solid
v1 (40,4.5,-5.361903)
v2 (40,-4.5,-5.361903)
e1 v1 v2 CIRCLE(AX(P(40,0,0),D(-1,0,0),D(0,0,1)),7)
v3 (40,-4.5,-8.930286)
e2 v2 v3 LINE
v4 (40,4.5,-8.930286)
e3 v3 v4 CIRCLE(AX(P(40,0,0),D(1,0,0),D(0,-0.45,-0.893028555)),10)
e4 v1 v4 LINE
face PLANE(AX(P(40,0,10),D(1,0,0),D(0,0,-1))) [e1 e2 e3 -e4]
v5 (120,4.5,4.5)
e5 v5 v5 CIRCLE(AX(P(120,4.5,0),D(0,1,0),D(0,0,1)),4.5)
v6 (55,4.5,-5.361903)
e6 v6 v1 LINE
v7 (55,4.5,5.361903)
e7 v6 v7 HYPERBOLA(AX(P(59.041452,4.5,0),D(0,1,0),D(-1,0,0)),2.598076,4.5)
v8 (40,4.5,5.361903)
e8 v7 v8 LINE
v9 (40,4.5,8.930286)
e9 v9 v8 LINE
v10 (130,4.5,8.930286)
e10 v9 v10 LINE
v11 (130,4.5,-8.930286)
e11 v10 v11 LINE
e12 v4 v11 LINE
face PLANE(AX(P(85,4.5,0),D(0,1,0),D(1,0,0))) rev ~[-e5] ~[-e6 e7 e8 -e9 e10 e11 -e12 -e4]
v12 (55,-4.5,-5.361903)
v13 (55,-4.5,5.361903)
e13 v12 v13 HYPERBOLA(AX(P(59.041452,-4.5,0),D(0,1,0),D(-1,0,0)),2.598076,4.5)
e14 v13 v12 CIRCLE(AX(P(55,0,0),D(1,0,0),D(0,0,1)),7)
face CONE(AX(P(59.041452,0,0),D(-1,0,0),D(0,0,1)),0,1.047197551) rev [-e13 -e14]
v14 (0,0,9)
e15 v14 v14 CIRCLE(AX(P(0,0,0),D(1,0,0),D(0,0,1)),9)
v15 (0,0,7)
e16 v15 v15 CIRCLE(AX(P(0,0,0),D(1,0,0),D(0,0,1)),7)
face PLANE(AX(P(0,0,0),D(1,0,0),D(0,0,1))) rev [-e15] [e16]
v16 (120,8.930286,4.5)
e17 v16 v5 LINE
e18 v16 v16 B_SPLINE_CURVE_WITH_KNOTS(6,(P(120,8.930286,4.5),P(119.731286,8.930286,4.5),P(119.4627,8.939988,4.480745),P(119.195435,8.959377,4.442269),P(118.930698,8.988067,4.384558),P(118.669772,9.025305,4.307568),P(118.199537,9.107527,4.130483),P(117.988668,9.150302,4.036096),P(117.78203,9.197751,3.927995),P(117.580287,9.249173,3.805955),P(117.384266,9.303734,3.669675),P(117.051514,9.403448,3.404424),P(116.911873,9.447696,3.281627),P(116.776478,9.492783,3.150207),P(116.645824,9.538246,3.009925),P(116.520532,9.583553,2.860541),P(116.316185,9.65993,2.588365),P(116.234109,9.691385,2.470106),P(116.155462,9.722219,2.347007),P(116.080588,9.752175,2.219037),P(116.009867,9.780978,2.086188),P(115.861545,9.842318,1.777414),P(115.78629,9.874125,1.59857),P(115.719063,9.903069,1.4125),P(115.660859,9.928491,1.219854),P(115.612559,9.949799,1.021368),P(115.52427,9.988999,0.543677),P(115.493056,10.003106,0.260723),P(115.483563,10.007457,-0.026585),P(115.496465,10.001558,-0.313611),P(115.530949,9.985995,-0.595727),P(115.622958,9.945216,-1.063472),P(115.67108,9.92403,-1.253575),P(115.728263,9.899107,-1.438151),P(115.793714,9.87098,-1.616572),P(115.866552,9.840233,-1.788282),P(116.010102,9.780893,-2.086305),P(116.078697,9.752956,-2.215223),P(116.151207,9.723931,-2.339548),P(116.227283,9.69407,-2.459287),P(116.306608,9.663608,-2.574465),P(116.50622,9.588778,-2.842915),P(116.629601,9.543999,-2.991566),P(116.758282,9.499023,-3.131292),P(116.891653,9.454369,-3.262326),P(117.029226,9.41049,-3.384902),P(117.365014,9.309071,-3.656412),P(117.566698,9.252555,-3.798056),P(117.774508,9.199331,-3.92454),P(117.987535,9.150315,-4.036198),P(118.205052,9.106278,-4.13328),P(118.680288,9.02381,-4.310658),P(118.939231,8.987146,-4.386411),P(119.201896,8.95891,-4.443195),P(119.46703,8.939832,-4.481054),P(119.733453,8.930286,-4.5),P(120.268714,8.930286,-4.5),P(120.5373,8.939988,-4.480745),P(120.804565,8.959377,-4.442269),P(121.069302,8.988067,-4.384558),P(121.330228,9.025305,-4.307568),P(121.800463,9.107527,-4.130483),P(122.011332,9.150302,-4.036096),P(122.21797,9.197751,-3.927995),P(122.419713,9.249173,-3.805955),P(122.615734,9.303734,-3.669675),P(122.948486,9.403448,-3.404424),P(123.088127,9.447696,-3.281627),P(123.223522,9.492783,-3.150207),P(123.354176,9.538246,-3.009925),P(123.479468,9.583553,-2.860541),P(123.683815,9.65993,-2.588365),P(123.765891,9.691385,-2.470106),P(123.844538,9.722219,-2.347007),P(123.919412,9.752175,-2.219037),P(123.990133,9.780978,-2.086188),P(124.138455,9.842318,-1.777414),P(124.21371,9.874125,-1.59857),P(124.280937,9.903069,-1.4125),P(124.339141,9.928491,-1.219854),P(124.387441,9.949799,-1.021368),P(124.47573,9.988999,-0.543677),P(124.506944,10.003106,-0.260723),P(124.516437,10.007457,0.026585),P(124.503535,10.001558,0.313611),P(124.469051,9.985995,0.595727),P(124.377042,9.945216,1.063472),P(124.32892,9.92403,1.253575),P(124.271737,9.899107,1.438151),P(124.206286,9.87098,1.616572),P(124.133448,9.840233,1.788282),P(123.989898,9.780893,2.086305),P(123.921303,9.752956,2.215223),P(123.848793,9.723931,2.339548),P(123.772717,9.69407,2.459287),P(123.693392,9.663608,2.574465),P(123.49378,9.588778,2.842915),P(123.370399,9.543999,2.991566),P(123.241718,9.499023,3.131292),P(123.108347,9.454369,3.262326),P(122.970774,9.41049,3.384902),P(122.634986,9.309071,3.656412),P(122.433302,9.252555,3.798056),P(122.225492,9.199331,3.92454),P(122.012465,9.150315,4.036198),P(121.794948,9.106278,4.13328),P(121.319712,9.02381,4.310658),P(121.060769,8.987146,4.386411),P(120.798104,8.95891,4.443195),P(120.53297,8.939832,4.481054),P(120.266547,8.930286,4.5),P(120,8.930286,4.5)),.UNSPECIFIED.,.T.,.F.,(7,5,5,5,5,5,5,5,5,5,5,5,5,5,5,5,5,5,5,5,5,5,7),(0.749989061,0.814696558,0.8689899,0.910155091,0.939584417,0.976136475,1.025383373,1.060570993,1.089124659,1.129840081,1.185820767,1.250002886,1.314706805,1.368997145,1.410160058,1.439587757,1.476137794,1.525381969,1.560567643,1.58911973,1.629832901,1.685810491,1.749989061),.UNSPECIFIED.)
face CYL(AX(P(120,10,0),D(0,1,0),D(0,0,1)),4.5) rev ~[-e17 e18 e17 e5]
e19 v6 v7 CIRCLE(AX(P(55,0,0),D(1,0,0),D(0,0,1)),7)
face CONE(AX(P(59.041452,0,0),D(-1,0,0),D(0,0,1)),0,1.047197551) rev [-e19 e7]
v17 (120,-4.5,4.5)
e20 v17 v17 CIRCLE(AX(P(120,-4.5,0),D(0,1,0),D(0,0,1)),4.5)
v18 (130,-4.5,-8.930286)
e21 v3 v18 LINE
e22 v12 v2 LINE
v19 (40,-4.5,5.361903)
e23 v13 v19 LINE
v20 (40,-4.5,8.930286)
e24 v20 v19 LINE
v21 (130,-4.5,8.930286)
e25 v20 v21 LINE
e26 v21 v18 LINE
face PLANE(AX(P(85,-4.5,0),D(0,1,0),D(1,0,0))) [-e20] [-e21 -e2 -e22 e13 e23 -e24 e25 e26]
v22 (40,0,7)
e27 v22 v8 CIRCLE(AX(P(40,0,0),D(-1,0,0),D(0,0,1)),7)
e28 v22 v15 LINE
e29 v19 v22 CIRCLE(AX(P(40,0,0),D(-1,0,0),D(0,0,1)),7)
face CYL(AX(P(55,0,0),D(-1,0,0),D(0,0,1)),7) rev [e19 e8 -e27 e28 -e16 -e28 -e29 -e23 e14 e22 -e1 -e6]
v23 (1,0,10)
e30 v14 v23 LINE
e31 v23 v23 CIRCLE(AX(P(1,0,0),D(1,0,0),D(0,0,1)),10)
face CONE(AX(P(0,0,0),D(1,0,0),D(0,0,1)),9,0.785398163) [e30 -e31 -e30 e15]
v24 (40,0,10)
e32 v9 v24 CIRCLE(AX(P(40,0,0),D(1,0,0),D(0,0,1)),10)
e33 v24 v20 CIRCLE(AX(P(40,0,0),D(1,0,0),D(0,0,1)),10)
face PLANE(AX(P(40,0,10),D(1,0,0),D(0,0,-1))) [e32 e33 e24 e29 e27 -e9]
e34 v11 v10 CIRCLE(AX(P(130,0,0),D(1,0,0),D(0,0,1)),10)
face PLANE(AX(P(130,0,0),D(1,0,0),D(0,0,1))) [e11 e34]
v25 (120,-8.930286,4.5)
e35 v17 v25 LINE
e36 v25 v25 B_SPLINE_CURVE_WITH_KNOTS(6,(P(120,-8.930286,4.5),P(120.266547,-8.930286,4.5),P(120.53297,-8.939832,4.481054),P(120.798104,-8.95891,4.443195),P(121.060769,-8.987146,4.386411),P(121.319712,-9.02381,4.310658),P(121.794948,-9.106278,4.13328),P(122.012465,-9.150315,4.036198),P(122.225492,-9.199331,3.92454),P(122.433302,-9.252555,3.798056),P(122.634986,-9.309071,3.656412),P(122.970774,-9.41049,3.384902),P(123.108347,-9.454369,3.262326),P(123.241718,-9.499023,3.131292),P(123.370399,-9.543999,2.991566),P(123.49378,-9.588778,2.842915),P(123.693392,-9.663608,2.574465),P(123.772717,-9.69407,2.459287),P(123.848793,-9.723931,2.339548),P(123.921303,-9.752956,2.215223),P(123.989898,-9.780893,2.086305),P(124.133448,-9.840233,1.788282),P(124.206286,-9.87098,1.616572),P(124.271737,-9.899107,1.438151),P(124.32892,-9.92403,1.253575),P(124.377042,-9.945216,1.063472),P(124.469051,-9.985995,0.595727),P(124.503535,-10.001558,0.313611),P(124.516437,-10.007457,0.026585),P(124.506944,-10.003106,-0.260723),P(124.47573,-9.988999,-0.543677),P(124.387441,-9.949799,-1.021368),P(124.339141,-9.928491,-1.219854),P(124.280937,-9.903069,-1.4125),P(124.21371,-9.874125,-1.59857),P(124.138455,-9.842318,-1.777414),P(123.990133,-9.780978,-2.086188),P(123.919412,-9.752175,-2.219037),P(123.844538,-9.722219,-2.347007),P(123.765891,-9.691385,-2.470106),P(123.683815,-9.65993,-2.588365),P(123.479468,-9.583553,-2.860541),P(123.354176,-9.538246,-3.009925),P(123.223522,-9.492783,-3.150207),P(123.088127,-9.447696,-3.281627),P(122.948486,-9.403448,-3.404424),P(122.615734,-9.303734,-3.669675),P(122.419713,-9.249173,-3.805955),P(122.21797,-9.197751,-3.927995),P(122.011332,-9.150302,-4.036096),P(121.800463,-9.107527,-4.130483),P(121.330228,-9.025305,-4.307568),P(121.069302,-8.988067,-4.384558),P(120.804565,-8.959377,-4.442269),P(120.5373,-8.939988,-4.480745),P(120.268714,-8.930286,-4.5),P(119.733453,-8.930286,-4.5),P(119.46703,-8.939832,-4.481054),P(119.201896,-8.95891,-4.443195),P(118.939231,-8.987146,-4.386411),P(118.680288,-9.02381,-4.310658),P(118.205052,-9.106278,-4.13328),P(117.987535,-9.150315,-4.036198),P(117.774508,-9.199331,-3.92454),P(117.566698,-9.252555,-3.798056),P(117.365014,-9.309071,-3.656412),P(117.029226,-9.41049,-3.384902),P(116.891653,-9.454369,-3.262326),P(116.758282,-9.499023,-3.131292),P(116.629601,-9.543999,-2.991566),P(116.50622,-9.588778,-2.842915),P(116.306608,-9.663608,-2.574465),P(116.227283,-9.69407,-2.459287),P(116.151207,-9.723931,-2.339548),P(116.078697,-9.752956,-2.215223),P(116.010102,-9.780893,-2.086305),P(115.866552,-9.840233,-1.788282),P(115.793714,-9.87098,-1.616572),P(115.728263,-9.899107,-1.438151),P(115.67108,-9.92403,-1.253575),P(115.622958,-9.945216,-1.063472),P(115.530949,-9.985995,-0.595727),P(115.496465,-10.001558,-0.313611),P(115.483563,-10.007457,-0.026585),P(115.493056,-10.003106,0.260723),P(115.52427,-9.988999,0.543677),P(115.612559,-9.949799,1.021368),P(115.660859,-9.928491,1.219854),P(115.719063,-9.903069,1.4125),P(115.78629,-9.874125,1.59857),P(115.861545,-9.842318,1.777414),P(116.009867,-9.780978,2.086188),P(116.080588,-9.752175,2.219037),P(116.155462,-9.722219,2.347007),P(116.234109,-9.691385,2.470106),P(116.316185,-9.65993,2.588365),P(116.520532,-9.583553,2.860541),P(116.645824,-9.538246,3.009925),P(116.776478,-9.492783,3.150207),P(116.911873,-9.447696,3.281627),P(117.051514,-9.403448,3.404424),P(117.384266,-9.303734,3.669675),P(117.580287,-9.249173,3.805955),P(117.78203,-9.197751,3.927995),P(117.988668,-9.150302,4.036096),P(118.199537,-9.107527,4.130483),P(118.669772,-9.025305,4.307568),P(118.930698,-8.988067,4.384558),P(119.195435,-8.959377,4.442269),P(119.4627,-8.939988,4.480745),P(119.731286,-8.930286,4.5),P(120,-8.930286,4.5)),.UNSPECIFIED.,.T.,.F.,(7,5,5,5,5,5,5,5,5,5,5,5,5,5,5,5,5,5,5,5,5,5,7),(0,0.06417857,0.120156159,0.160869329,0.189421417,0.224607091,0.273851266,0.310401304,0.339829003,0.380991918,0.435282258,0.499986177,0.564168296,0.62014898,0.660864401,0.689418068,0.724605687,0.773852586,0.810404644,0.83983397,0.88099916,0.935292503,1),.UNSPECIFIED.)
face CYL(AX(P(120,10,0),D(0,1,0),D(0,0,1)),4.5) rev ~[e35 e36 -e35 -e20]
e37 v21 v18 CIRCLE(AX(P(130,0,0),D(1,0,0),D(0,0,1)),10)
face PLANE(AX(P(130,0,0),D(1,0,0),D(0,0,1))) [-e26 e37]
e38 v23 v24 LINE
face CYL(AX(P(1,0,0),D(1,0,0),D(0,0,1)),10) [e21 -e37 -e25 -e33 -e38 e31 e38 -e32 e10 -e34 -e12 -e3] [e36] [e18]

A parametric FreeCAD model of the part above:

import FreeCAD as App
import Part
import Sketcher
Q = App.Units.Quantity

doc = App.newDocument("Part")
body = doc.addObject("PartDesign::Body", "Body")

# Sketch on XY plane
sketch1 = doc.addObject("Sketcher::SketchObject", "Sketch")
body.addObject(sketch1)
sketch1.AttachmentSupport = (doc.XY_Plane, [""])
sketch1.MapMode = "FlatFace"
sketch1.addGeometry([
    Part.LineSegment(App.Vector(0, 9, 0), App.Vector(0, 7, 0)),  # 0
    Part.LineSegment(App.Vector(0, 7, 0), App.Vector(55, 7, 0)),  # 1
    Part.LineSegment(App.Vector(55, 7, 0), App.Vector(59, 0, 0)),  # 2
    Part.LineSegment(App.Vector(59, 0, 0), App.Vector(130, 0, 0)),  # 3
    Part.LineSegment(App.Vector(130, 0, 0), App.Vector(130, 10, 0)),  # 4
    Part.LineSegment(App.Vector(130, 10, 0), App.Vector(1, 10, 0)),  # 5
    Part.LineSegment(App.Vector(1, 10, 0), App.Vector(0, 9, 0)),  # 6
], False)
sketch1.addConstraint([
    Sketcher.Constraint("Coincident", 0, 2, 1, 1),
    Sketcher.Constraint("Coincident", 1, 2, 2, 1),
    Sketcher.Constraint("Coincident", 2, 2, 3, 1),
    Sketcher.Constraint("Coincident", 3, 2, 4, 1),
    Sketcher.Constraint("Coincident", 4, 2, 5, 1),
    Sketcher.Constraint("Coincident", 5, 2, 6, 1),
    Sketcher.Constraint("Coincident", 6, 2, 0, 1),
    Sketcher.Constraint("Vertical", 0),
    Sketcher.Constraint("Horizontal", 1),
    Sketcher.Constraint("Horizontal", 3),
    Sketcher.Constraint("Vertical", 4),
    Sketcher.Constraint("Horizontal", 5),
    Sketcher.Constraint("PointOnObject", 0, 2, -2),
    Sketcher.Constraint("PointOnObject", 2, 2, -1),
    Sketcher.Constraint("DistanceX", 1, 1, 1, 2, Q("55 mm")),
    Sketcher.Constraint("DistanceX", 5, 2, 5, 1, Q("129 mm")),
    Sketcher.Constraint("DistanceY", 0, 2, 0, 1, Q("2 mm")),
    Sketcher.Constraint("DistanceY", 4, 1, 4, 2, Q("10 mm")),
    Sketcher.Constraint("Angle", 2, Q("-60 deg")),
    Sketcher.Constraint("Angle", 6, Q("-135 deg")),
    Sketcher.Constraint("DistanceY", -1, 1, 0, 2, Q("7 mm")),
])
revolution = doc.addObject("PartDesign::Revolution", "Revolution")
body.addObject(revolution)
revolution.Profile = sketch1
revolution.ReferenceAxis = (sketch1, ["H_Axis"])
revolution.Angle = 360

# Sketch on XZ plane
sketch2 = doc.addObject("Sketcher::SketchObject", "Sketch001")
body.addObject(sketch2)
sketch2.AttachmentSupport = (doc.XZ_Plane, [""])
sketch2.MapMode = "FlatFace"
sketch2.AttachmentOffset = App.Placement(App.Vector(0, 0, -10), App.Rotation())
sketch2.addGeometry(Part.Circle(App.Vector(120, 0, 0), App.Vector(0, 0, 1), 4.5), False)
sketch2.addConstraint([
    Sketcher.Constraint("PointOnObject", 0, 3, -1),
    Sketcher.Constraint("Diameter", 0, Q("9 mm")),
    Sketcher.Constraint("DistanceX", -1, 1, 0, 3, Q("120 mm")),
])
pocket1 = doc.addObject("PartDesign::Pocket", "Pocket")
body.addObject(pocket1)
pocket1.Profile = sketch2
pocket1.Type = "ThroughAll"
pocket1.Reversed = True

# Sketch on XZ plane
sketch3 = doc.addObject("Sketcher::SketchObject", "Sketch002")
body.addObject(sketch3)
sketch3.AttachmentSupport = (doc.XZ_Plane, [""])
sketch3.MapMode = "FlatFace"
sketch3.addGeometry([
    Part.LineSegment(App.Vector(40, -10, 0), App.Vector(40, 10, 0)),
    Part.LineSegment(App.Vector(40, 10, 0), App.Vector(130, 10, 0)),
    Part.LineSegment(App.Vector(130, 10, 0), App.Vector(130, -10, 0)),
    Part.LineSegment(App.Vector(130, -10, 0), App.Vector(40, -10, 0)),
], False)
sketch3.addConstraint([
    Sketcher.Constraint("Coincident", 0, 2, 1, 1),
    Sketcher.Constraint("Coincident", 1, 2, 2, 1),
    Sketcher.Constraint("Coincident", 2, 2, 3, 1),
    Sketcher.Constraint("Coincident", 3, 2, 0, 1),
    Sketcher.Constraint("Vertical", 0),
    Sketcher.Constraint("Horizontal", 1),
    Sketcher.Constraint("Vertical", 2),
    Sketcher.Constraint("Horizontal", 3),
    Sketcher.Constraint("DistanceX", 1, 1, 1, 2, Q("90 mm")),
    Sketcher.Constraint("DistanceY", 0, 1, 0, 2, Q("20 mm")),
    Sketcher.Constraint("DistanceX", -1, 1, 0, 2, Q("40 mm")),
    Sketcher.Constraint("DistanceY", -1, 1, 0, 2, Q("10 mm")),
])
pocket2 = doc.addObject("PartDesign::Pocket", "Pocket001")
body.addObject(pocket2)
pocket2.Profile = sketch3
pocket2.Length = 9
pocket2.Midplane = True

doc.recompute()
